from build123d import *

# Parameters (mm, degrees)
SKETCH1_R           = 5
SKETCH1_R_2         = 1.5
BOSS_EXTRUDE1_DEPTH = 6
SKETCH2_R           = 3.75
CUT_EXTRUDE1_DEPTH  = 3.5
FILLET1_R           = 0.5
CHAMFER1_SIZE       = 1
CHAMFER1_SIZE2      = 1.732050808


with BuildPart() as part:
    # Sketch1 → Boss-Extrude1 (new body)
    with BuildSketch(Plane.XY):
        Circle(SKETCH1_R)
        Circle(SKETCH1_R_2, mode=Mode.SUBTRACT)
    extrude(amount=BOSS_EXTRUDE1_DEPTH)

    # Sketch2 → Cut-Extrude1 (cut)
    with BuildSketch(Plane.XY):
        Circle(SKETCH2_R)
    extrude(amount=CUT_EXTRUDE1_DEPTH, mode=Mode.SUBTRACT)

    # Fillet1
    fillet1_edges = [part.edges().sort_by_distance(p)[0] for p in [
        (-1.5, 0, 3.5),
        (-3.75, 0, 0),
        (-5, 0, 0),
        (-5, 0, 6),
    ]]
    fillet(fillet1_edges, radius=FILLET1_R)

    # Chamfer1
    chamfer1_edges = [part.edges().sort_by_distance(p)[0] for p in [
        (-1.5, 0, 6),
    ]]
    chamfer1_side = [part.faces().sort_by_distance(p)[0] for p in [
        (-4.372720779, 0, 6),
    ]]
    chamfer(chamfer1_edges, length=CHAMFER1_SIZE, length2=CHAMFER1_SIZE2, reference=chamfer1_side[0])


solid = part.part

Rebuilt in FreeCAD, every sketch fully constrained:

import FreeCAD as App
import Part
import Sketcher


def edges_at(feature, points):
    """Names of the edges that pass closest to the given points."""
    edges = feature.Shape.Edges
    near = lambda p: min(range(len(edges)), key=lambda i: edges[i].distToShape(Part.Vertex(*p))[0])
    return sorted({f"Edge{near(p) + 1}" for p in points})

doc = App.newDocument("Part")
body = doc.addObject("PartDesign::Body", "Body")

# Sketch on XY plane
sketch1 = body.newObject("Sketcher::SketchObject", "Sketch")
sketch1.AttachmentSupport = (doc.getObject("XY_Plane"), [""])
sketch1.MapMode = "FlatFace"
sketch1.addGeometry([
    Part.Circle(App.Vector(0, 0, 0), App.Vector(0, 0, 1), 5),
    Part.Circle(App.Vector(0, 0, 0), App.Vector(0, 0, 1), 1.5),
], False)
sketch1.addConstraint([
    Sketcher.Constraint("Coincident", 0, 3, -1, 1),
    Sketcher.Constraint("Coincident", 1, 3, -1, 1),
    Sketcher.Constraint("Diameter", 0, 10.0),
    Sketcher.Constraint("Diameter", 1, 3.0),
])
pad1 = body.newObject("PartDesign::Pad", "Pad")
pad1.Profile = sketch1
pad1.Length = 6

# Sketch on XY plane
sketch2 = body.newObject("Sketcher::SketchObject", "Sketch001")
sketch2.AttachmentSupport = (doc.getObject("XY_Plane"), [""])
sketch2.MapMode = "FlatFace"
sketch2.addGeometry(Part.Circle(App.Vector(0, 0, 0), App.Vector(0, 0, 1), 3.8), False)
sketch2.addConstraint([
    Sketcher.Constraint("Coincident", 0, 3, -1, 1),
    Sketcher.Constraint("Diameter", 0, 7.5),
])
pocket1 = body.newObject("PartDesign::Pocket", "Pocket")
pocket1.Profile = sketch2
pocket1.Length = 3.5
pocket1.Reversed = True
doc.recompute()

fillet = body.newObject("PartDesign::Fillet", "Fillet")
fillet.Base = (pocket1, edges_at(pocket1, [
    (-1.5, 0, 3.5),
    (-3.75, 0, 0),
    (-5, 0, 0),
    (-5, 0, 6),
]))
fillet.Radius = 0.5
doc.recompute()

chamfer = body.newObject("PartDesign::Chamfer", "Chamfer")
chamfer.Base = (fillet, edges_at(fillet, [(-1.5, 0, 6)]))
chamfer.ChamferType = "Two distances"
chamfer.Size = 1
chamfer.Size2 = 1.732051

doc.recompute()
